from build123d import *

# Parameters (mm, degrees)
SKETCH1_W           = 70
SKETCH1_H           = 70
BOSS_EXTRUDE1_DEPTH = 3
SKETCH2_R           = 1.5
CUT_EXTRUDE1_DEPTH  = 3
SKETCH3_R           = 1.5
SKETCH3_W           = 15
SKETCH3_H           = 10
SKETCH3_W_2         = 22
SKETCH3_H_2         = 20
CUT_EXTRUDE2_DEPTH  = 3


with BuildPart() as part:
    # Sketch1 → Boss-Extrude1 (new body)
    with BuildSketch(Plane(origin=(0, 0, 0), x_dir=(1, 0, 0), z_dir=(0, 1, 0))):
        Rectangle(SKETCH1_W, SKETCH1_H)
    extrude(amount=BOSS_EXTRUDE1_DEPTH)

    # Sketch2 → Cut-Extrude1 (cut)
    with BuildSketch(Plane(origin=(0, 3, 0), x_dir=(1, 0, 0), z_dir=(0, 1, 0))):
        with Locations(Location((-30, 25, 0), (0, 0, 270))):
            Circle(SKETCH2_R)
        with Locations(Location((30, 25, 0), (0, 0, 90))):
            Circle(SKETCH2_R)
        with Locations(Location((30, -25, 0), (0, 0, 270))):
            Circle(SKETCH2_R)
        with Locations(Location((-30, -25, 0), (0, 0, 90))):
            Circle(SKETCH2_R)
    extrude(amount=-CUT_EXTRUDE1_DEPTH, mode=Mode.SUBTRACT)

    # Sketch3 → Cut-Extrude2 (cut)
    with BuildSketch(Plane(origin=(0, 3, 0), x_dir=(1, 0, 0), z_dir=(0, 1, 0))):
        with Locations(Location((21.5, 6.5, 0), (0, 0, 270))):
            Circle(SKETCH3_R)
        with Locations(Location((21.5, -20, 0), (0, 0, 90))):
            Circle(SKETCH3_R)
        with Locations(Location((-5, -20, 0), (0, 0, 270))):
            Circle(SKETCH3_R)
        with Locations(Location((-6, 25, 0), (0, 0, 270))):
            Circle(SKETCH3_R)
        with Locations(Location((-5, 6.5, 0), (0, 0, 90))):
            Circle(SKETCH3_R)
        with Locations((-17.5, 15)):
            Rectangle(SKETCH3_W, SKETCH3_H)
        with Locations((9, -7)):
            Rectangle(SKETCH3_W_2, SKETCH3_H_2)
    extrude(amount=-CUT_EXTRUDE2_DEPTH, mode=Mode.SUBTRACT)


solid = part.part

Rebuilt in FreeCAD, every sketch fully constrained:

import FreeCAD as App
import Part
import Sketcher

doc = App.newDocument("Part")
body = doc.addObject("PartDesign::Body", "Body")

sketch1 = body.newObject("Sketcher::SketchObject", "Sketch")
sketch1.AttachmentSupport = (doc.getObject("XZ_Plane"), [""])
sketch1.MapMode = "FlatFace"
sketch1.addGeometry([
    Part.LineSegment(App.Vector(-35, -35, 0), App.Vector(-35, 35, 0)),
    Part.LineSegment(App.Vector(-35, 35, 0), App.Vector(35, 35, 0)),
    Part.LineSegment(App.Vector(35, 35, 0), App.Vector(35, -35, 0)),
    Part.LineSegment(App.Vector(35, -35, 0), App.Vector(-35, -35, 0)),
], False)
sketch1.addConstraint([
    Sketcher.Constraint("Coincident", 0, 2, 1, 1),
    Sketcher.Constraint("Coincident", 1, 2, 2, 1),
    Sketcher.Constraint("Coincident", 2, 2, 3, 1),
    Sketcher.Constraint("Coincident", 3, 2, 0, 1),
    Sketcher.Constraint("Vertical", 0),
    Sketcher.Constraint("Horizontal", 1),
    Sketcher.Constraint("Vertical", 2),
    Sketcher.Constraint("Horizontal", 3),
    Sketcher.Constraint("Symmetric", 0, 2, 2, 2, -1, 1),
    Sketcher.Constraint("Equal", 3, 0),
    Sketcher.Constraint("DistanceX", 1, 1, 1, 2, 70.0),
])
pad1 = body.newObject("PartDesign::Pad", "Pad")
pad1.Profile = sketch1
pad1.Length = 3
pad1.Reversed = True

sketch2 = body.newObject("Sketcher::SketchObject", "Sketch001")
sketch2.AttachmentSupport = (doc.getObject("XZ_Plane"), [""])
sketch2.MapMode = "FlatFace"
sketch2.AttachmentOffset = App.Placement(App.Vector(0, 0, -3), App.Rotation())
sketch2.addGeometry([
    Part.Circle(App.Vector(-30, -25, 0), App.Vector(0, 0, 1), 1.5),
    Part.Circle(App.Vector(30, -25, 0), App.Vector(0, 0, 1), 1.5),
    Part.Circle(App.Vector(30, 25, 0), App.Vector(0, 0, 1), 1.5),
    Part.Circle(App.Vector(-30, 25, 0), App.Vector(0, 0, 1), 1.5),
], False)
sketch2.addConstraint([
    Sketcher.Constraint("Equal", 0, 1),
    Sketcher.Constraint("Equal", 1, 2),
    Sketcher.Constraint("Equal", 2, 3),
    Sketcher.Constraint("Symmetric", 0, 3, 2, 3, -1, 1),
    Sketcher.Constraint("Symmetric", 1, 3, 3, 3, -1, 1),
    Sketcher.Constraint("Symmetric", 0, 3, 1, 3, -2),
    Sketcher.Constraint("Diameter", 0, 3.0),
    Sketcher.Constraint("DistanceX", 0, 3, -1, 1, 30.0),
    Sketcher.Constraint("DistanceY", 0, 3, -1, 1, 25.0),
])
pocket1 = body.newObject("PartDesign::Pocket", "Pocket")
pocket1.Profile = sketch2
pocket1.Length = 3
pocket1.Reversed = True

sketch3 = body.newObject("Sketcher::SketchObject", "Sketch002")
sketch3.AttachmentSupport = (doc.getObject("XZ_Plane"), [""])
sketch3.MapMode = "FlatFace"
sketch3.AttachmentOffset = App.Placement(App.Vector(0, 0, -3), App.Rotation())
sketch3.addGeometry([
    Part.Circle(App.Vector(21.5, -6.5, 0), App.Vector(0, 0, 1), 1.5),
    Part.Circle(App.Vector(21.5, 20, 0), App.Vector(0, 0, 1), 1.5),
    Part.Circle(App.Vector(-5, 20, 0), App.Vector(0, 0, 1), 1.5),
    Part.Circle(App.Vector(-6, -25, 0), App.Vector(0, 0, 1), 1.5),
    Part.Circle(App.Vector(-5, -6.5, 0), App.Vector(0, 0, 1), 1.5),
    Part.LineSegment(App.Vector(-25, -20, 0), App.Vector(-25, -10, 0)),
    Part.LineSegment(App.Vector(-25, -10, 0), App.Vector(-10, -10, 0)),
    Part.LineSegment(App.Vector(-10, -10, 0), App.Vector(-10, -20, 0)),
    Part.LineSegment(App.Vector(-10, -20, 0), App.Vector(-25, -20, 0)),
    Part.LineSegment(App.Vector(-2, -3, 0), App.Vector(-2, 17, 0)),
    Part.LineSegment(App.Vector(-2, 17, 0), App.Vector(20, 17, 0)),
    Part.LineSegment(App.Vector(20, 17, 0), App.Vector(20, -3, 0)),
    Part.LineSegment(App.Vector(20, -3, 0), App.Vector(-2, -3, 0)),
], False)
sketch3.addConstraint([
    Sketcher.Constraint("Coincident", 5, 2, 6, 1),
    Sketcher.Constraint("Coincident", 6, 2, 7, 1),
    Sketcher.Constraint("Coincident", 7, 2, 8, 1),
    Sketcher.Constraint("Coincident", 8, 2, 5, 1),
    Sketcher.Constraint("Coincident", 9, 2, 10, 1),
    Sketcher.Constraint("Coincident", 10, 2, 11, 1),
    Sketcher.Constraint("Coincident", 11, 2, 12, 1),
    Sketcher.Constraint("Coincident", 12, 2, 9, 1),
    Sketcher.Constraint("Vertical", 5),
    Sketcher.Constraint("Horizontal", 6),
    Sketcher.Constraint("Vertical", 7),
    Sketcher.Constraint("Horizontal", 8),
    Sketcher.Constraint("Vertical", 9),
    Sketcher.Constraint("Horizontal", 10),
    Sketcher.Constraint("Vertical", 11),
    Sketcher.Constraint("Horizontal", 12),
    Sketcher.Constraint("Equal", 0, 1),
    Sketcher.Constraint("Equal", 1, 2),
    Sketcher.Constraint("Equal", 2, 3),
    Sketcher.Constraint("Equal", 3, 4),
    Sketcher.Constraint("Horizontal", 1, 3, 2, 3),
    Sketcher.Constraint("Horizontal", 0, 3, 4, 3),
    Sketcher.Constraint("Vertical", 0, 3, 1, 3),
    Sketcher.Constraint("Vertical", 2, 3, 4, 3),
    Sketcher.Constraint("Diameter", 0, 3.0),
    Sketcher.Constraint("DistanceX", 6, 1, 6, 2, 15.0),
    Sketcher.Constraint("DistanceX", 10, 1, 10, 2, 22.0),
    Sketcher.Constraint("DistanceY", 5, 1, 5, 2, 10.0),
    Sketcher.Constraint("DistanceY", 9, 1, 9, 2, 20.0),
    Sketcher.Constraint("DistanceY", -1, 1, 1, 3, 20.0),
    Sketcher.Constraint("DistanceX", 2, 3, -1, 1, 5.0),
    Sketcher.Constraint("DistanceX", 3, 3, -1, 1, 6.0),
    Sketcher.Constraint("DistanceY", 3, 3, -1, 1, 25.0),
    Sketcher.Constraint("DistanceX", 5, 2, -1, 1, 25.0),
    Sketcher.Constraint("DistanceY", 5, 2, -1, 1, 10.0),
    Sketcher.Constraint("DistanceX", 9, 2, -1, 1, 2.0),
    Sketcher.Constraint("DistanceY", -1, 1, 9, 2, 17.0),
    Sketcher.Constraint("DistanceX", -1, 1, 0, 3, 21.5),
    Sketcher.Constraint("DistanceY", 0, 3, -1, 1, 6.5),
])
pocket2 = body.newObject("PartDesign::Pocket", "Pocket001")
pocket2.Profile = sketch3
pocket2.Length = 3
pocket2.Reversed = True

doc.recompute()
